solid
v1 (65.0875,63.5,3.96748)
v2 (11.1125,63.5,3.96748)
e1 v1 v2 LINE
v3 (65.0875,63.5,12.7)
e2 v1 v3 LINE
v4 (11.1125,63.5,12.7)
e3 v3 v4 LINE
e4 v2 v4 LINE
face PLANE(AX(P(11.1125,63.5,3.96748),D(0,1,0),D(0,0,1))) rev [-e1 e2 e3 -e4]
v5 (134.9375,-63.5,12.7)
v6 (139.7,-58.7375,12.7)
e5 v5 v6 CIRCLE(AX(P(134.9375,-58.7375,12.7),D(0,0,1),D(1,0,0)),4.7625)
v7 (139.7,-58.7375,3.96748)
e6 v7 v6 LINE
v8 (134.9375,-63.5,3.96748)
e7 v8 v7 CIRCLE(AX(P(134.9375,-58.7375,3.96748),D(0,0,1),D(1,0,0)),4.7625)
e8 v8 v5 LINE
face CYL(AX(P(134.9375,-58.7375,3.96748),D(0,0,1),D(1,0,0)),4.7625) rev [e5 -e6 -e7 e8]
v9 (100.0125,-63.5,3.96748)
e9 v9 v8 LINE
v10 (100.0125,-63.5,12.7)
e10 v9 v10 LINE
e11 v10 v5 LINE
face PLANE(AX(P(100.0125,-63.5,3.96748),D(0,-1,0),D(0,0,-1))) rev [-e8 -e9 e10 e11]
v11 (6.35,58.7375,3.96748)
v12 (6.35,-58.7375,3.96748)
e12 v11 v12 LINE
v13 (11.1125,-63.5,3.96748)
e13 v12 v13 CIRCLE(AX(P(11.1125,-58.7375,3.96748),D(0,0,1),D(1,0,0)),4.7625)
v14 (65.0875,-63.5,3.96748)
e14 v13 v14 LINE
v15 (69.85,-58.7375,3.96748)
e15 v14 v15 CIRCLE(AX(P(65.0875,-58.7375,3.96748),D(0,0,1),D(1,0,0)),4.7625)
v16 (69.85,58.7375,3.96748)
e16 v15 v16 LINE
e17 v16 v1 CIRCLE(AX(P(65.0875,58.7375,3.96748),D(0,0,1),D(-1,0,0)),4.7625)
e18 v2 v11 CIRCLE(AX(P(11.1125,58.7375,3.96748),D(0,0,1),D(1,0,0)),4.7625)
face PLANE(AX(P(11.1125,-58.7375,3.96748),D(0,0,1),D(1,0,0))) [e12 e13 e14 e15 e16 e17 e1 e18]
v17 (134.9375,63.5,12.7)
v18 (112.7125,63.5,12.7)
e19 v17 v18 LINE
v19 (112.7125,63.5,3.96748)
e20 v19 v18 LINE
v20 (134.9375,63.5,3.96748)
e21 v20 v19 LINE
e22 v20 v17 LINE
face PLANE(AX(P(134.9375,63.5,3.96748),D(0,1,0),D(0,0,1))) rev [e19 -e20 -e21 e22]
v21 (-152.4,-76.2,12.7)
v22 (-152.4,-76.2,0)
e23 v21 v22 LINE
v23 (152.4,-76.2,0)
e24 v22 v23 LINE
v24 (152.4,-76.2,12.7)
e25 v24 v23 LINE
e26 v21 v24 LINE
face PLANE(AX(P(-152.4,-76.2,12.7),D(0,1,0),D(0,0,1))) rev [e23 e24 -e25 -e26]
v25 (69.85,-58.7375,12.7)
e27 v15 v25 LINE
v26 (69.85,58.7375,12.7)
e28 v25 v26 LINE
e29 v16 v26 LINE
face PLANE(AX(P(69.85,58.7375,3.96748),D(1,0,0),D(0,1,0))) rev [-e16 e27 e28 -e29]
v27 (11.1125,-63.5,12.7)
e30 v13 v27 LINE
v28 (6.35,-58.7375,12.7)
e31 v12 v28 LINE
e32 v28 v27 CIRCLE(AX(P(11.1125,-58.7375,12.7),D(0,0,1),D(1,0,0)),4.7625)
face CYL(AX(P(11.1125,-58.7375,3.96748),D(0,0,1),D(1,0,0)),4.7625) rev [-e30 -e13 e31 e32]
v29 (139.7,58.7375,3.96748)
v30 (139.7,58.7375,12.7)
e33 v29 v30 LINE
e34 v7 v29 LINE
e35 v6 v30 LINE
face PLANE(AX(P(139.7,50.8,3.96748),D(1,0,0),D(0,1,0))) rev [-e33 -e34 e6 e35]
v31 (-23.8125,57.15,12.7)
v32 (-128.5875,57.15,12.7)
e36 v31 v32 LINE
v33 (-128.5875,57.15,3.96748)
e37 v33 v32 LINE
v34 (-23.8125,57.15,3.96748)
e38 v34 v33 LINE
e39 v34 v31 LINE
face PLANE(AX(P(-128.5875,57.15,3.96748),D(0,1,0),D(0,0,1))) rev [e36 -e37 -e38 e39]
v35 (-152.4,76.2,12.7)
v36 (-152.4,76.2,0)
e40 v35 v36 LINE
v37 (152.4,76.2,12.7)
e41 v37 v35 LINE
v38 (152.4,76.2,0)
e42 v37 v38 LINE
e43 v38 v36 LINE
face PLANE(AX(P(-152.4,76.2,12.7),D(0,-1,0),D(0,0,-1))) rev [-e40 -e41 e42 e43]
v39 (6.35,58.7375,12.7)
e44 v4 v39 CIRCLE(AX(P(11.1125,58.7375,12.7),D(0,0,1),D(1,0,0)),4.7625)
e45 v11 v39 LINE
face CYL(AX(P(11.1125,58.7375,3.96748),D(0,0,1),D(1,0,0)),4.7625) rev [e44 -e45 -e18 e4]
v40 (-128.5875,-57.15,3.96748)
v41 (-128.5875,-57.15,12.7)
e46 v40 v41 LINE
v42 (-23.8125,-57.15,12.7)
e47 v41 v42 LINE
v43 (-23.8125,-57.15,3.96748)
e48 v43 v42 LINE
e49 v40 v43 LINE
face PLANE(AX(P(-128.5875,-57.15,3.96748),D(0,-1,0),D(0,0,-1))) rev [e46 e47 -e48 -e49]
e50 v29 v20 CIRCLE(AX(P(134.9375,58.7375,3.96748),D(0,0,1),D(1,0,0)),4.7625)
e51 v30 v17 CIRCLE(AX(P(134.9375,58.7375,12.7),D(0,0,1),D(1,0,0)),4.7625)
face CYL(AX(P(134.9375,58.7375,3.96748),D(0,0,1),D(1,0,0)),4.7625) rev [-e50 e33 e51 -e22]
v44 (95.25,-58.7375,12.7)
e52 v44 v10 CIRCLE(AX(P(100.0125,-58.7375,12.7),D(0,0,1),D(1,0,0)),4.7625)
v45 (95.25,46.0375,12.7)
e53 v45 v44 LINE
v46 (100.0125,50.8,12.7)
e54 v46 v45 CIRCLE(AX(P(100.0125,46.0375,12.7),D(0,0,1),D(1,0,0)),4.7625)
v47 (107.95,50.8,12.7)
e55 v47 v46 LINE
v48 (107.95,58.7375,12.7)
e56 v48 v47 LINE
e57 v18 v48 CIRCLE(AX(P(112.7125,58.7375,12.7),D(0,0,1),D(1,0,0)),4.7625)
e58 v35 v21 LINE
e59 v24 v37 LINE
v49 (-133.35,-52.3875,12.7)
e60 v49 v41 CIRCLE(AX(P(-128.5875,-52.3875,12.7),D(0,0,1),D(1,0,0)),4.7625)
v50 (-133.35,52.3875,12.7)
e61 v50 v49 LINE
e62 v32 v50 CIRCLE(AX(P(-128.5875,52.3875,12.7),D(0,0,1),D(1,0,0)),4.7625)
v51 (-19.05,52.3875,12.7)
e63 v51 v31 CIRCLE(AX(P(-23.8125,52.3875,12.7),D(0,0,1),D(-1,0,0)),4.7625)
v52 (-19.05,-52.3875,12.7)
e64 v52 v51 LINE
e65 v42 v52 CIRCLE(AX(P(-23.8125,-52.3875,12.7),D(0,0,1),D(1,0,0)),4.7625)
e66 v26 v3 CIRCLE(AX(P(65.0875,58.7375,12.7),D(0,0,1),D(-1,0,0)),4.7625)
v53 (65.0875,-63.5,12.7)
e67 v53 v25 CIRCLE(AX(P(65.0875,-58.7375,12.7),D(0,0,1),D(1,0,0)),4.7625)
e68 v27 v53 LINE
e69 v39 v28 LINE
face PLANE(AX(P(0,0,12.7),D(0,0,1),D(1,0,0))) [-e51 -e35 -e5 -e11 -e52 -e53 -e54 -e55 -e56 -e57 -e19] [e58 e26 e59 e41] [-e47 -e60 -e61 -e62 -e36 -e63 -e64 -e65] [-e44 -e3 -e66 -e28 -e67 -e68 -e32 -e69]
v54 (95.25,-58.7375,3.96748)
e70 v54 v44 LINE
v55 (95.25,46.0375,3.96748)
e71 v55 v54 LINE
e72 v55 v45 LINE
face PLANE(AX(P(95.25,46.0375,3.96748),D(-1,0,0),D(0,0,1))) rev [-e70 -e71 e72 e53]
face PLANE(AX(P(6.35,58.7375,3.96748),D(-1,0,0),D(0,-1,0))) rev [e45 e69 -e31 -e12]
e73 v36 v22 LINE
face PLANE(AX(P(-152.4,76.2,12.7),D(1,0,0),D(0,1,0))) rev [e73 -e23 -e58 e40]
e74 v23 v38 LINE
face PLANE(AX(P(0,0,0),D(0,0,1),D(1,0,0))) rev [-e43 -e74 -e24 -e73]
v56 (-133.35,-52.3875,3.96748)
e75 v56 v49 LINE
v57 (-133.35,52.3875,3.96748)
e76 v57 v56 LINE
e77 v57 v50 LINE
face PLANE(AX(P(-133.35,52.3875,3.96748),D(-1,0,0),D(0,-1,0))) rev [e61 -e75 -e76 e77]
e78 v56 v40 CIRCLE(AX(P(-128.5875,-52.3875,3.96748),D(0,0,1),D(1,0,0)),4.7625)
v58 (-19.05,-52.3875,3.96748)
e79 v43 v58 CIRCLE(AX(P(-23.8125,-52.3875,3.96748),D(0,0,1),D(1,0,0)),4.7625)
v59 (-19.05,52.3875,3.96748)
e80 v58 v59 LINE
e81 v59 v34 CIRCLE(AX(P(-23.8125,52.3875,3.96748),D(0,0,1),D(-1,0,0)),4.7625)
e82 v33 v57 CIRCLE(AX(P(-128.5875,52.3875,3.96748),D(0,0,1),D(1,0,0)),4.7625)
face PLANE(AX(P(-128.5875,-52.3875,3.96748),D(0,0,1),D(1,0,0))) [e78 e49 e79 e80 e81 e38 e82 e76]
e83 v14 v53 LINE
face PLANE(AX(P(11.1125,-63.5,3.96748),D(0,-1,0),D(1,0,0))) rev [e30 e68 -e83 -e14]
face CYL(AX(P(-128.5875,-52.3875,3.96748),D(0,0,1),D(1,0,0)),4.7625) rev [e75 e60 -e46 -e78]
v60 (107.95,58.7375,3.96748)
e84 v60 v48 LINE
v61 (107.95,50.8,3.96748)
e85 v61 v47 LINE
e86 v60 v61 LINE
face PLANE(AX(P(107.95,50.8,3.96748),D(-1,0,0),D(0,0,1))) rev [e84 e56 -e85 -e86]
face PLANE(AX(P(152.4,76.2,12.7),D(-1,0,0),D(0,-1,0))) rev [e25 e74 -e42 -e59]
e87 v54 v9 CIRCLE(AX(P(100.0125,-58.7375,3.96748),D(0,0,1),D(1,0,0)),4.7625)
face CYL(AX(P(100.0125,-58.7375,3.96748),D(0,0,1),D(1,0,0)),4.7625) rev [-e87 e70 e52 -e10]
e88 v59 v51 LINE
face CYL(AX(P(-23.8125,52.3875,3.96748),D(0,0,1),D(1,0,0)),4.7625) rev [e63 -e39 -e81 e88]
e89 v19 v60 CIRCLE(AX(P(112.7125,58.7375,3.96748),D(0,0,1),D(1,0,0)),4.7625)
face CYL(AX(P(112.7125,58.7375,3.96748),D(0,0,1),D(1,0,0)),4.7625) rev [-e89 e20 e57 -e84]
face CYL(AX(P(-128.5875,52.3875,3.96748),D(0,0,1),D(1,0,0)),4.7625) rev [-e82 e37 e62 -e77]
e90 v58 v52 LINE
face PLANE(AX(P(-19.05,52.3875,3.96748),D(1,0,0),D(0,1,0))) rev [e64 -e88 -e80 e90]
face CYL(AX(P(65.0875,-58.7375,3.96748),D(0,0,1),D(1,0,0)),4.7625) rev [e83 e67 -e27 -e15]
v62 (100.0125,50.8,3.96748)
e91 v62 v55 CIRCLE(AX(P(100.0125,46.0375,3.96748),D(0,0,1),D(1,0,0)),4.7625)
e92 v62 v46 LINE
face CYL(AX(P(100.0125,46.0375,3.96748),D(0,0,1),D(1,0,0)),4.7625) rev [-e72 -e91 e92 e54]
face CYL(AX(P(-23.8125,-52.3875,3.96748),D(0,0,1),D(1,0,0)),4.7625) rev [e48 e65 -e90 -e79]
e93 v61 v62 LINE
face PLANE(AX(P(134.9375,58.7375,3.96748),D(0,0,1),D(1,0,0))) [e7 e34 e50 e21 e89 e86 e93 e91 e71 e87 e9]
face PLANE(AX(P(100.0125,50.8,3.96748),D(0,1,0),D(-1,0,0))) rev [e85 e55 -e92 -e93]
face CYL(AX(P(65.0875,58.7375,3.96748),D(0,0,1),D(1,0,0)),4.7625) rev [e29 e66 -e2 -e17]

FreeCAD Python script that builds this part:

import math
import FreeCAD as App
import Part
import Sketcher
Q = App.Units.Quantity

doc = App.newDocument("Part")
body = doc.addObject("PartDesign::Body", "Body")

# Sketch on XY plane
sketch1 = body.newObject("Sketcher::SketchObject", "Sketch")
sketch1.AttachmentSupport = (doc.getObject("XY_Plane"), [""])
sketch1.MapMode = "FlatFace"
sketch1.addGeometry([
    Part.LineSegment(App.Vector(-152.4, 76.2, 0), App.Vector(-152.4, -76.2, 0)),
    Part.LineSegment(App.Vector(-152.4, -76.2, 0), App.Vector(152.4, -76.2, 0)),
    Part.LineSegment(App.Vector(152.4, -76.2, 0), App.Vector(152.4, 76.2, 0)),
    Part.LineSegment(App.Vector(152.4, 76.2, 0), App.Vector(-152.4, 76.2, 0)),
], False)
sketch1.addConstraint([
    Sketcher.Constraint("Coincident", 0, 2, 1, 1),
    Sketcher.Constraint("Coincident", 1, 2, 2, 1),
    Sketcher.Constraint("Coincident", 2, 2, 3, 1),
    Sketcher.Constraint("Coincident", 3, 2, 0, 1),
    Sketcher.Constraint("Vertical", 0),
    Sketcher.Constraint("Horizontal", 1),
    Sketcher.Constraint("Vertical", 2),
    Sketcher.Constraint("Horizontal", 3),
    Sketcher.Constraint("Symmetric", 0, 2, 2, 2, -1, 1),
    Sketcher.Constraint("DistanceX", 1, 1, 1, 2, Q("12 in")),
    Sketcher.Constraint("DistanceY", 0, 2, 0, 1, Q("6 in")),
])
pad1 = body.newObject("PartDesign::Pad", "Pad")
pad1.Profile = sketch1
pad1.Length = Q("0.5 in")

# Sketch on XY plane
sketch2 = body.newObject("Sketcher::SketchObject", "Sketch001")
sketch2.AttachmentSupport = (doc.getObject("XY_Plane"), [""])
sketch2.MapMode = "FlatFace"
sketch2.AttachmentOffset = App.Placement(App.Vector(0, 0, 0.5 * 25.4), App.Rotation())
sketch2.addGeometry([
    Part.LineSegment(App.Vector(-23.8125, 57.15, 0), App.Vector(-128.5875, 57.15, 0)),  # 0
    Part.ArcOfCircle(Part.Circle(App.Vector(-128.5875, 52.3875, 0), App.Vector(0, 0, 1), 4.7625), math.radians(90), math.radians(180)),  # 1
    Part.LineSegment(App.Vector(-133.35, 52.3875, 0), App.Vector(-133.35, -52.3875, 0)),  # 2
    Part.ArcOfCircle(Part.Circle(App.Vector(-128.5875, -52.3875, 0), App.Vector(0, 0, 1), 4.7625), math.radians(-180), math.radians(-90)),  # 3
    Part.LineSegment(App.Vector(-128.5875, -57.15, 0), App.Vector(-23.8125, -57.15, 0)),  # 4
    Part.ArcOfCircle(Part.Circle(App.Vector(-23.8125, -52.3875, 0), App.Vector(0, 0, 1), 4.7625), math.radians(-90), math.radians(0)),  # 5
    Part.LineSegment(App.Vector(-19.05, -52.3875, 0), App.Vector(-19.05, 52.3875, 0)),  # 6
    Part.ArcOfCircle(Part.Circle(App.Vector(-23.8125, 52.3875, 0), App.Vector(0, 0, 1), 4.7625), math.radians(0), math.radians(90)),  # 7
], False)
sketch2.addConstraint([
    Sketcher.Constraint("Tangent", 0, 2, 1, 1),
    Sketcher.Constraint("Tangent", 1, 2, 2, 1),
    Sketcher.Constraint("Tangent", 2, 2, 3, 1),
    Sketcher.Constraint("Tangent", 3, 2, 4, 1),
    Sketcher.Constraint("Tangent", 4, 2, 5, 1),
    Sketcher.Constraint("Tangent", 5, 2, 6, 1),
    Sketcher.Constraint("Tangent", 6, 2, 7, 1),
    Sketcher.Constraint("Tangent", 7, 2, 0, 1),
    Sketcher.Constraint("Horizontal", 0),
    Sketcher.Constraint("Vertical", 2),
    Sketcher.Constraint("Horizontal", 4),
    Sketcher.Constraint("Vertical", 6),
    Sketcher.Constraint("Equal", 1, 3),
    Sketcher.Constraint("Equal", 3, 5),
    Sketcher.Constraint("Equal", 5, 7),
    Sketcher.Constraint("Equal", 4, 2),
    Sketcher.Constraint("Radius", 1, Q("0.1875 in")),
    Sketcher.Constraint("DistanceX", 0, 2, 0, 1, Q("4.125 in")),
    Sketcher.Constraint("DistanceY", -1, 1, 0, 2, Q("2.25 in")),
    Sketcher.Constraint("DistanceX", 1, 2, -1, 1, Q("5.25 in")),
])
pocket1 = body.newObject("PartDesign::Pocket", "Pocket")
pocket1.Profile = sketch2
pocket1.Length = Q("0.3438 in")

# Sketch on XY plane
sketch3 = body.newObject("Sketcher::SketchObject", "Sketch002")
sketch3.AttachmentSupport = (doc.getObject("XY_Plane"), [""])
sketch3.MapMode = "FlatFace"
sketch3.AttachmentOffset = App.Placement(App.Vector(0, 0, 0.5 * 25.4), App.Rotation())
sketch3.addGeometry([
    Part.LineSegment(App.Vector(107.95, 50.8, 0), App.Vector(100.0125, 50.8, 0)),  # 0
    Part.ArcOfCircle(Part.Circle(App.Vector(100.0125, 46.0375, 0), App.Vector(0, 0, 1), 4.7625), math.radians(90), math.radians(180)),  # 1
    Part.LineSegment(App.Vector(95.25, 46.0375, 0), App.Vector(95.25, -58.7375, 0)),  # 2
    Part.ArcOfCircle(Part.Circle(App.Vector(100.0125, -58.7375, 0), App.Vector(0, 0, 1), 4.7625), math.radians(-180), math.radians(-90)),  # 3
    Part.LineSegment(App.Vector(100.0125, -63.5, 0), App.Vector(134.9375, -63.5, 0)),  # 4
    Part.ArcOfCircle(Part.Circle(App.Vector(134.9375, -58.7375, 0), App.Vector(0, 0, 1), 4.7625), math.radians(-90), math.radians(0)),  # 5
    Part.LineSegment(App.Vector(139.7, -58.7375, 0), App.Vector(139.7, 58.7375, 0)),  # 6
    Part.ArcOfCircle(Part.Circle(App.Vector(134.9375, 58.7375, 0), App.Vector(0, 0, 1), 4.7625), math.radians(0), math.radians(90)),  # 7
    Part.LineSegment(App.Vector(134.9375, 63.5, 0), App.Vector(112.7125, 63.5, 0)),  # 8
    Part.ArcOfCircle(Part.Circle(App.Vector(112.7125, 58.7375, 0), App.Vector(0, 0, 1), 4.7625), math.radians(90), math.radians(180)),  # 9
    Part.LineSegment(App.Vector(107.95, 58.7375, 0), App.Vector(107.95, 50.8, 0)),  # 10
    Part.LineSegment(App.Vector(65.0875, 63.5, 0), App.Vector(11.1125, 63.5, 0)),  # 11
    Part.ArcOfCircle(Part.Circle(App.Vector(11.1125, 58.7375, 0), App.Vector(0, 0, 1), 4.7625), math.radians(90), math.radians(180)),  # 12
    Part.LineSegment(App.Vector(6.35, 58.7375, 0), App.Vector(6.35, -58.7375, 0)),  # 13
    Part.ArcOfCircle(Part.Circle(App.Vector(11.1125, -58.7375, 0), App.Vector(0, 0, 1), 4.7625), math.radians(-180), math.radians(-90)),  # 14
    Part.LineSegment(App.Vector(11.1125, -63.5, 0), App.Vector(65.0875, -63.5, 0)),  # 15
    Part.ArcOfCircle(Part.Circle(App.Vector(65.0875, -58.7375, 0), App.Vector(0, 0, 1), 4.7625), math.radians(-90), math.radians(0)),  # 16
    Part.LineSegment(App.Vector(69.85, -58.7375, 0), App.Vector(69.85, 58.7375, 0)),  # 17
    Part.ArcOfCircle(Part.Circle(App.Vector(65.0875, 58.7375, 0), App.Vector(0, 0, 1), 4.7625), math.radians(0), math.radians(90)),  # 18
], False)
sketch3.addConstraint([
    Sketcher.Constraint("Tangent", 0, 2, 1, 1),
    Sketcher.Constraint("Tangent", 1, 2, 2, 1),
    Sketcher.Constraint("Tangent", 2, 2, 3, 1),
    Sketcher.Constraint("Tangent", 3, 2, 4, 1),
    Sketcher.Constraint("Tangent", 4, 2, 5, 1),
    Sketcher.Constraint("Tangent", 5, 2, 6, 1),
    Sketcher.Constraint("Tangent", 6, 2, 7, 1),
    Sketcher.Constraint("Tangent", 7, 2, 8, 1),
    Sketcher.Constraint("Tangent", 8, 2, 9, 1),
    Sketcher.Constraint("Tangent", 9, 2, 10, 1),
    Sketcher.Constraint("Coincident", 10, 2, 0, 1),
    Sketcher.Constraint("Tangent", 11, 2, 12, 1),
    Sketcher.Constraint("Tangent", 12, 2, 13, 1),
    Sketcher.Constraint("Tangent", 13, 2, 14, 1),
    Sketcher.Constraint("Tangent", 14, 2, 15, 1),
    Sketcher.Constraint("Tangent", 15, 2, 16, 1),
    Sketcher.Constraint("Tangent", 16, 2, 17, 1),
    Sketcher.Constraint("Tangent", 17, 2, 18, 1),
    Sketcher.Constraint("Tangent", 18, 2, 11, 1),
    Sketcher.Constraint("Horizontal", 0),
    Sketcher.Constraint("Vertical", 2),
    Sketcher.Constraint("Horizontal", 4),
    Sketcher.Constraint("Vertical", 6),
    Sketcher.Constraint("Horizontal", 8),
    Sketcher.Constraint("Vertical", 10),
    Sketcher.Constraint("Horizontal", 11),
    Sketcher.Constraint("Vertical", 13),
    Sketcher.Constraint("Horizontal", 15),
    Sketcher.Constraint("Vertical", 17),
    Sketcher.Constraint("Equal", 1, 3),
    Sketcher.Constraint("Equal", 3, 5),
    Sketcher.Constraint("Equal", 5, 7),
    Sketcher.Constraint("Equal", 7, 9),
    Sketcher.Constraint("Equal", 9, 12),
    Sketcher.Constraint("Equal", 12, 14),
    Sketcher.Constraint("Equal", 14, 16),
    Sketcher.Constraint("Equal", 16, 18),
    Sketcher.Constraint("Horizontal", 9, 3, 12, 3),
    Sketcher.Constraint("Horizontal", 5, 3, 14, 3),
    Sketcher.Constraint("Equal", 0, 10),
    Sketcher.Constraint("DistanceY", -1, 1, 0, 2, Q("2 in")),
    Sketcher.Constraint("Radius", 1, Q("0.1875 in")),
    Sketcher.Constraint("DistanceX", 12, 3, 9, 3, Q("4 in")),
    Sketcher.Constraint("DistanceX", 16, 2, 2, 2, Q("1 in")),
    Sketcher.Constraint("DistanceY", 3, 2, -1, 1, Q("2.5 in")),
    Sketcher.Constraint("DistanceX", -1, 1, 5, 2, Q("5.5 in")),
    Sketcher.Constraint("DistanceY", -1, 1, 7, 2, Q("2.5 in")),
    Sketcher.Constraint("DistanceX", 4, 1, 4, 2, Q("1.375 in")),
])
pocket2 = body.newObject("PartDesign::Pocket", "Pocket001")
pocket2.Profile = sketch3
pocket2.Length = Q("0.3438 in")

doc.recompute()
